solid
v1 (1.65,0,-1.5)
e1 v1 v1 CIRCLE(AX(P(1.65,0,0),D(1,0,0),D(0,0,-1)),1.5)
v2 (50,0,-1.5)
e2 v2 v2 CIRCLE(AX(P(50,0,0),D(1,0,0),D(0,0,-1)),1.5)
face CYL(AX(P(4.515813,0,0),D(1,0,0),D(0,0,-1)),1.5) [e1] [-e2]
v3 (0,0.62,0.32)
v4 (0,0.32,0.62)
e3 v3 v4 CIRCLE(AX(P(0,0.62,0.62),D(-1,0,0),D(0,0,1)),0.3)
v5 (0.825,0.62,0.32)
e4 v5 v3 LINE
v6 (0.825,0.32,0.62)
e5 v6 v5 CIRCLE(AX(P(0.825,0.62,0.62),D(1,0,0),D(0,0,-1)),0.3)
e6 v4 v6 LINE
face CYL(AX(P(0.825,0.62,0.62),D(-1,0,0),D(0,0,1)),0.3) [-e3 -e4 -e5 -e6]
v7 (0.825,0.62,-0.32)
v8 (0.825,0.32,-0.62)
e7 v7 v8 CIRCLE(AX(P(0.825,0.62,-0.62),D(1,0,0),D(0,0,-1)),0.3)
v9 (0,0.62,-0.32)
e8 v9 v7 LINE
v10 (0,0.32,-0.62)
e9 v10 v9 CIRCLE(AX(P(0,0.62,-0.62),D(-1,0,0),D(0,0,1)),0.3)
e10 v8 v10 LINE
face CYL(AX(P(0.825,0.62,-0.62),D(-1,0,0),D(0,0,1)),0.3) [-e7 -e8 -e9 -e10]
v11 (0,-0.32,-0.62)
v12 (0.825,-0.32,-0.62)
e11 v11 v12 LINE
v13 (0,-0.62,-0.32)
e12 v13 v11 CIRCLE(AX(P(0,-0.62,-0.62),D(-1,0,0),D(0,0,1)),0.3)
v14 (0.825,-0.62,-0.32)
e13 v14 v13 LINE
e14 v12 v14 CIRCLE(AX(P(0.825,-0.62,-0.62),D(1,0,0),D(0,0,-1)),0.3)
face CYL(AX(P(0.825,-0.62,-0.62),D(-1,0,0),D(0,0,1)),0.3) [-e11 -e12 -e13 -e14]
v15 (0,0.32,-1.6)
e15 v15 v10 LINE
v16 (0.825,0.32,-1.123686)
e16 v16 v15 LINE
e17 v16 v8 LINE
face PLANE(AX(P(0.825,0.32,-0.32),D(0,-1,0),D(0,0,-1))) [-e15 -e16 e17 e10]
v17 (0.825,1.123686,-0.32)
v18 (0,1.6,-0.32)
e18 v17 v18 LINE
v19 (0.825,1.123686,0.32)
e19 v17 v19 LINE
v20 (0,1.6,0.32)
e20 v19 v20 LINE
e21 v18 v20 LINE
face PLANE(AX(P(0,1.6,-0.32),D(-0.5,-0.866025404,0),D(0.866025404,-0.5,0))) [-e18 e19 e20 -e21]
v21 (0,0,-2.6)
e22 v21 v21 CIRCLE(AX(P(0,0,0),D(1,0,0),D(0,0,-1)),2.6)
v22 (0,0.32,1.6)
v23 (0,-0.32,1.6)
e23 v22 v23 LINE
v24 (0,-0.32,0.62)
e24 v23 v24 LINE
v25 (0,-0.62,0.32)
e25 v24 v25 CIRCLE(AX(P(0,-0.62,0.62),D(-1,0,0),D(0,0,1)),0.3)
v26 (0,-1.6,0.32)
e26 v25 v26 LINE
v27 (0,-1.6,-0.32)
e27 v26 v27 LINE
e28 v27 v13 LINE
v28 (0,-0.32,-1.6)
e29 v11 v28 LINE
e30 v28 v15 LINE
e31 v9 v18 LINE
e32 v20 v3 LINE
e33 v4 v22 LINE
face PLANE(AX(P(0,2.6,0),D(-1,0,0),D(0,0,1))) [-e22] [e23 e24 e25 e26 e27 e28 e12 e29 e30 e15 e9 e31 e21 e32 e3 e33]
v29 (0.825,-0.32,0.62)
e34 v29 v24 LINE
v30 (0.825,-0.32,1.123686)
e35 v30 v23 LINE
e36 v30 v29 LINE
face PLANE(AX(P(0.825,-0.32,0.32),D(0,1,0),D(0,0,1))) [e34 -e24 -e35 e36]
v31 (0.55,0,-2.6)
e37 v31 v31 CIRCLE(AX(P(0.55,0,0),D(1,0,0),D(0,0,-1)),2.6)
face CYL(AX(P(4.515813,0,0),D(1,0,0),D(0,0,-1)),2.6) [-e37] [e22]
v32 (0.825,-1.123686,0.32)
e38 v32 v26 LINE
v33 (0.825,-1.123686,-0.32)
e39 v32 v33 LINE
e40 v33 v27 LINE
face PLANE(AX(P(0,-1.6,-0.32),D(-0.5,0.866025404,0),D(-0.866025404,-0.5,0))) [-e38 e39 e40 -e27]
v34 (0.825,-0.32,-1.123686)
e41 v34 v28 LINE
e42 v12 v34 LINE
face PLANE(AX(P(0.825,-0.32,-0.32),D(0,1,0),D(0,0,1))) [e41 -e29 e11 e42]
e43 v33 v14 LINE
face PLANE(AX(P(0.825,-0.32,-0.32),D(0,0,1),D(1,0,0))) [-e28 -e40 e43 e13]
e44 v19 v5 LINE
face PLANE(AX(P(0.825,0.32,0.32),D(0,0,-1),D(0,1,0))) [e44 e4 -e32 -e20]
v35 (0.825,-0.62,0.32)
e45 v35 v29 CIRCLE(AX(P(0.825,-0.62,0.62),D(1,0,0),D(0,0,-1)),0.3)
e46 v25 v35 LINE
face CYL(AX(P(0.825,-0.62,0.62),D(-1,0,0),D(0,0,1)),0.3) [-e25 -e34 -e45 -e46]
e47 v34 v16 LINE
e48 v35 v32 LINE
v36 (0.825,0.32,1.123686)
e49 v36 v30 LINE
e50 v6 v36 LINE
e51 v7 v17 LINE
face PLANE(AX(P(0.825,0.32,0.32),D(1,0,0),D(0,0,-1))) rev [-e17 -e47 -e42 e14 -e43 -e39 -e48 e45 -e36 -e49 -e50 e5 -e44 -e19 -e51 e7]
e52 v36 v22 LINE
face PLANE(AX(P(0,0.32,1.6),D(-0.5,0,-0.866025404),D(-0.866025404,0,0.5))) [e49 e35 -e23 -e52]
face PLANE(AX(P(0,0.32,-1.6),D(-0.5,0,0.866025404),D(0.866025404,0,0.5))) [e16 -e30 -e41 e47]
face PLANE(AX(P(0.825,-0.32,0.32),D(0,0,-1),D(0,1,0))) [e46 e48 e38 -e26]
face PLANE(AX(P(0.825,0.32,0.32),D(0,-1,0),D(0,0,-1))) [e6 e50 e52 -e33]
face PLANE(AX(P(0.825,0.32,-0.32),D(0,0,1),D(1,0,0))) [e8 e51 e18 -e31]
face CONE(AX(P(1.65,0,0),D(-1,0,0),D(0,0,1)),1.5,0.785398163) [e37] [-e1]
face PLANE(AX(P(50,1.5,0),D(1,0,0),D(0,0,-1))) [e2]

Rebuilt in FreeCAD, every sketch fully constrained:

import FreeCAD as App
import Part
import Sketcher

V = App.Vector
Q = App.Units.Quantity


def edges_at(feature, points):
    """Names of the edges that pass closest to the given points."""
    edges = feature.Shape.Edges
    near = lambda p: min(range(len(edges)), key=lambda i: edges[i].distToShape(Part.Vertex(*p))[0])
    return sorted({f"Edge{near(p) + 1}" for p in points})


def faces_at(feature, points):
    """Names of the faces that lie closest to the given points."""
    faces = feature.Shape.Faces
    near = lambda p: min(range(len(faces)), key=lambda i: faces[i].distToShape(Part.Vertex(*p))[0])
    return sorted({f"Face{near(p) + 1}" for p in points})

doc = App.newDocument("Part")
body = doc.addObject("PartDesign::Body", "Body")

sketch1 = doc.addObject("Sketcher::SketchObject", "Sketch")
body.addObject(sketch1)
sketch1.AttachmentSupport = (doc.XY_Plane, [""])
sketch1.MapMode = "FlatFace"
sketch1.addGeometry([
    Part.LineSegment(V(50, 1.5, 0), V(1.6, 1.5, 0)),
    Part.LineSegment(V(1.6, 1.5, 0), V(0.6, 2.6, 0)),
    Part.LineSegment(V(0.6, 2.6, 0), V(0, 2.6, 0)),
    Part.LineSegment(V(0, 2.6, 0), V(0, 0, 0)),
    Part.LineSegment(V(0, 0, 0), V(50, 0, 0)),
    Part.LineSegment(V(50, 0, 0), V(50, 1.5, 0)),
], False)
sketch1.addConstraint([
    Sketcher.Constraint("Coincident", 0, 2, 1, 1),
    Sketcher.Constraint("Coincident", 1, 2, 2, 1),
    Sketcher.Constraint("Coincident", 2, 2, 3, 1),
    Sketcher.Constraint("Coincident", 3, 2, 4, 1),
    Sketcher.Constraint("Coincident", 4, 2, 5, 1),
    Sketcher.Constraint("Coincident", 5, 2, 0, 1),
    Sketcher.Constraint("Horizontal", 0),
    Sketcher.Constraint("Horizontal", 2),
    Sketcher.Constraint("Vertical", 3),
    Sketcher.Constraint("Horizontal", 4),
    Sketcher.Constraint("Vertical", 5),
    Sketcher.Constraint("Coincident", 3, 2, -1, 1),
    Sketcher.Constraint("DistanceX", 4, 1, 4, 2, Q("50 mm")),
    Sketcher.Constraint("Angle", 1, Q("135 deg")),
    Sketcher.Constraint("DistanceY", 3, 2, 3, 1, Q("2.6 mm")),
    Sketcher.Constraint("DistanceY", 5, 1, 5, 2, Q("1.5 mm")),
    Sketcher.Constraint("DistanceX", 0, 2, 0, 1, Q("48.35 mm")),
])
revolution = doc.addObject("PartDesign::Revolution", "Revolution")
body.addObject(revolution)
revolution.Profile = sketch1
revolution.ReferenceAxis = (sketch1, ["H_Axis"])
revolution.Angle = 360

sketch2 = doc.addObject("Sketcher::SketchObject", "Sketch001")
body.addObject(sketch2)
sketch2.AttachmentSupport = (doc.YZ_Plane, [""])
sketch2.MapMode = "FlatFace"
sketch2.addGeometry([
    Part.LineSegment(V(0.3, -0.3, 0), V(1.6, -0.3, 0)),
    Part.LineSegment(V(1.6, -0.3, 0), V(1.6, 0.3, 0)),
    Part.LineSegment(V(1.6, 0.3, 0), V(0.3, 0.3, 0)),
    Part.LineSegment(V(0.3, 0.3, 0), V(0.3, 1.6, 0)),
    Part.LineSegment(V(0.3, 1.6, 0), V(-0.3, 1.6, 0)),
    Part.LineSegment(V(-0.3, 1.6, 0), V(-0.3, 0.3, 0)),
    Part.LineSegment(V(-0.3, 0.3, 0), V(-1.6, 0.3, 0)),
    Part.LineSegment(V(-1.6, 0.3, 0), V(-1.6, -0.3, 0)),
    Part.LineSegment(V(-1.6, -0.3, 0), V(-0.3, -0.3, 0)),
    Part.LineSegment(V(-0.3, -0.3, 0), V(-0.3, -1.6, 0)),
    Part.LineSegment(V(-0.3, -1.6, 0), V(0.3, -1.6, 0)),
    Part.LineSegment(V(0.3, -1.6, 0), V(0.3, -0.3, 0)),
], False)
sketch2.addConstraint([
    Sketcher.Constraint("Coincident", 0, 2, 1, 1),
    Sketcher.Constraint("Coincident", 1, 2, 2, 1),
    Sketcher.Constraint("Coincident", 2, 2, 3, 1),
    Sketcher.Constraint("Coincident", 3, 2, 4, 1),
    Sketcher.Constraint("Coincident", 4, 2, 5, 1),
    Sketcher.Constraint("Coincident", 5, 2, 6, 1),
    Sketcher.Constraint("Coincident", 6, 2, 7, 1),
    Sketcher.Constraint("Coincident", 7, 2, 8, 1),
    Sketcher.Constraint("Coincident", 8, 2, 9, 1),
    Sketcher.Constraint("Coincident", 9, 2, 10, 1),
    Sketcher.Constraint("Coincident", 10, 2, 11, 1),
    Sketcher.Constraint("Coincident", 11, 2, 0, 1),
    Sketcher.Constraint("Horizontal", 0),
    Sketcher.Constraint("Vertical", 1),
    Sketcher.Constraint("Horizontal", 2),
    Sketcher.Constraint("Vertical", 3),
    Sketcher.Constraint("Horizontal", 4),
    Sketcher.Constraint("Vertical", 5),
    Sketcher.Constraint("Horizontal", 6),
    Sketcher.Constraint("Vertical", 7),
    Sketcher.Constraint("Horizontal", 8),
    Sketcher.Constraint("Vertical", 9),
    Sketcher.Constraint("Horizontal", 10),
    Sketcher.Constraint("Vertical", 11),
    Sketcher.Constraint("Symmetric", 0, 2, 6, 2, -1, 1),
    Sketcher.Constraint("Symmetric", 2, 2, 8, 2, -1, 1),
    Sketcher.Constraint("Symmetric", 4, 2, 10, 2, -1, 1),
    Sketcher.Constraint("Symmetric", 2, 2, 5, 2, -2),
    Sketcher.Constraint("Equal", 10, 1),
    Sketcher.Constraint("Equal", 8, 3),
    Sketcher.Constraint("DistanceX", 0, 1, 0, 2, Q("1.28 mm")),
    Sketcher.Constraint("DistanceX", 4, 2, 4, 1, Q("0.64 mm")),
])
pocket1 = doc.addObject("PartDesign::Pocket", "Pocket")
body.addObject(pocket1)
pocket1.Profile = sketch2
pocket1.Length = 0.825
pocket1.Reversed = True
doc.recompute()

draft = doc.addObject("PartDesign::Draft", "Draft")
body.addObject(draft)
draft.Base = (pocket1, faces_at(pocket1, [
    (0.412, -1.6, 0),
    (0.412, 0, 1.6),
    (0.412, 0, -1.6),
    (0.412, 1.6, 0),
]))
draft.NeutralPlane = (doc.YZ_Plane, [""])
draft.Angle = 30
draft.Reversed = True
doc.recompute()

fillet = doc.addObject("PartDesign::Fillet", "Fillet")
body.addObject(fillet)
fillet.Base = (draft, edges_at(draft, [
    (0.412, 0.32, 0.32),
    (0.412, -0.32, 0.32),
    (0.412, -0.32, -0.32),
    (0.412, 0.32, -0.32),
]))
fillet.Radius = 0.3

sketch3 = doc.addObject("Sketcher::SketchObject", "Sketch002")
body.addObject(sketch3)
sketch3.AttachmentSupport = (doc.XY_Plane, [""])
sketch3.MapMode = "FlatFace"
sketch3.addGeometry([
    Part.LineSegment(V(1.6, 1.5, 0), V(1.6, 0, 0)),
    Part.LineSegment(V(1.6, 0, 0), V(2.1, 0, 0)),
    Part.LineSegment(V(2.1, 0, 0), V(2.1, 1.5, 0)),
    Part.LineSegment(V(2.1, 1.5, 0), V(1.6, 1.5, 0)),
], False)
sketch3.addConstraint([
    Sketcher.Constraint("Coincident", 0, 2, 1, 1),
    Sketcher.Constraint("Coincident", 1, 2, 2, 1),
    Sketcher.Constraint("Coincident", 2, 2, 3, 1),
    Sketcher.Constraint("Coincident", 3, 2, 0, 1),
    Sketcher.Constraint("Vertical", 0),
    Sketcher.Constraint("Horizontal", 1),
    Sketcher.Constraint("Vertical", 2),
    Sketcher.Constraint("Horizontal", 3),
    Sketcher.Constraint("PointOnObject", 0, 2, -1),
    Sketcher.Constraint("DistanceX", 1, 1, 1, 2, Q("0.5 mm")),
    Sketcher.Constraint("DistanceY", 0, 2, 0, 1, Q("1.5 mm")),
    Sketcher.Constraint("DistanceX", -1, 1, 0, 2, Q("1.65 mm")),
])
revolution2 = doc.addObject("PartDesign::Revolution", "Revolution001")
body.addObject(revolution2)
revolution2.Profile = sketch3
revolution2.ReferenceAxis = (sketch3, ["H_Axis"])
revolution2.Angle = 360

doc.recompute()
